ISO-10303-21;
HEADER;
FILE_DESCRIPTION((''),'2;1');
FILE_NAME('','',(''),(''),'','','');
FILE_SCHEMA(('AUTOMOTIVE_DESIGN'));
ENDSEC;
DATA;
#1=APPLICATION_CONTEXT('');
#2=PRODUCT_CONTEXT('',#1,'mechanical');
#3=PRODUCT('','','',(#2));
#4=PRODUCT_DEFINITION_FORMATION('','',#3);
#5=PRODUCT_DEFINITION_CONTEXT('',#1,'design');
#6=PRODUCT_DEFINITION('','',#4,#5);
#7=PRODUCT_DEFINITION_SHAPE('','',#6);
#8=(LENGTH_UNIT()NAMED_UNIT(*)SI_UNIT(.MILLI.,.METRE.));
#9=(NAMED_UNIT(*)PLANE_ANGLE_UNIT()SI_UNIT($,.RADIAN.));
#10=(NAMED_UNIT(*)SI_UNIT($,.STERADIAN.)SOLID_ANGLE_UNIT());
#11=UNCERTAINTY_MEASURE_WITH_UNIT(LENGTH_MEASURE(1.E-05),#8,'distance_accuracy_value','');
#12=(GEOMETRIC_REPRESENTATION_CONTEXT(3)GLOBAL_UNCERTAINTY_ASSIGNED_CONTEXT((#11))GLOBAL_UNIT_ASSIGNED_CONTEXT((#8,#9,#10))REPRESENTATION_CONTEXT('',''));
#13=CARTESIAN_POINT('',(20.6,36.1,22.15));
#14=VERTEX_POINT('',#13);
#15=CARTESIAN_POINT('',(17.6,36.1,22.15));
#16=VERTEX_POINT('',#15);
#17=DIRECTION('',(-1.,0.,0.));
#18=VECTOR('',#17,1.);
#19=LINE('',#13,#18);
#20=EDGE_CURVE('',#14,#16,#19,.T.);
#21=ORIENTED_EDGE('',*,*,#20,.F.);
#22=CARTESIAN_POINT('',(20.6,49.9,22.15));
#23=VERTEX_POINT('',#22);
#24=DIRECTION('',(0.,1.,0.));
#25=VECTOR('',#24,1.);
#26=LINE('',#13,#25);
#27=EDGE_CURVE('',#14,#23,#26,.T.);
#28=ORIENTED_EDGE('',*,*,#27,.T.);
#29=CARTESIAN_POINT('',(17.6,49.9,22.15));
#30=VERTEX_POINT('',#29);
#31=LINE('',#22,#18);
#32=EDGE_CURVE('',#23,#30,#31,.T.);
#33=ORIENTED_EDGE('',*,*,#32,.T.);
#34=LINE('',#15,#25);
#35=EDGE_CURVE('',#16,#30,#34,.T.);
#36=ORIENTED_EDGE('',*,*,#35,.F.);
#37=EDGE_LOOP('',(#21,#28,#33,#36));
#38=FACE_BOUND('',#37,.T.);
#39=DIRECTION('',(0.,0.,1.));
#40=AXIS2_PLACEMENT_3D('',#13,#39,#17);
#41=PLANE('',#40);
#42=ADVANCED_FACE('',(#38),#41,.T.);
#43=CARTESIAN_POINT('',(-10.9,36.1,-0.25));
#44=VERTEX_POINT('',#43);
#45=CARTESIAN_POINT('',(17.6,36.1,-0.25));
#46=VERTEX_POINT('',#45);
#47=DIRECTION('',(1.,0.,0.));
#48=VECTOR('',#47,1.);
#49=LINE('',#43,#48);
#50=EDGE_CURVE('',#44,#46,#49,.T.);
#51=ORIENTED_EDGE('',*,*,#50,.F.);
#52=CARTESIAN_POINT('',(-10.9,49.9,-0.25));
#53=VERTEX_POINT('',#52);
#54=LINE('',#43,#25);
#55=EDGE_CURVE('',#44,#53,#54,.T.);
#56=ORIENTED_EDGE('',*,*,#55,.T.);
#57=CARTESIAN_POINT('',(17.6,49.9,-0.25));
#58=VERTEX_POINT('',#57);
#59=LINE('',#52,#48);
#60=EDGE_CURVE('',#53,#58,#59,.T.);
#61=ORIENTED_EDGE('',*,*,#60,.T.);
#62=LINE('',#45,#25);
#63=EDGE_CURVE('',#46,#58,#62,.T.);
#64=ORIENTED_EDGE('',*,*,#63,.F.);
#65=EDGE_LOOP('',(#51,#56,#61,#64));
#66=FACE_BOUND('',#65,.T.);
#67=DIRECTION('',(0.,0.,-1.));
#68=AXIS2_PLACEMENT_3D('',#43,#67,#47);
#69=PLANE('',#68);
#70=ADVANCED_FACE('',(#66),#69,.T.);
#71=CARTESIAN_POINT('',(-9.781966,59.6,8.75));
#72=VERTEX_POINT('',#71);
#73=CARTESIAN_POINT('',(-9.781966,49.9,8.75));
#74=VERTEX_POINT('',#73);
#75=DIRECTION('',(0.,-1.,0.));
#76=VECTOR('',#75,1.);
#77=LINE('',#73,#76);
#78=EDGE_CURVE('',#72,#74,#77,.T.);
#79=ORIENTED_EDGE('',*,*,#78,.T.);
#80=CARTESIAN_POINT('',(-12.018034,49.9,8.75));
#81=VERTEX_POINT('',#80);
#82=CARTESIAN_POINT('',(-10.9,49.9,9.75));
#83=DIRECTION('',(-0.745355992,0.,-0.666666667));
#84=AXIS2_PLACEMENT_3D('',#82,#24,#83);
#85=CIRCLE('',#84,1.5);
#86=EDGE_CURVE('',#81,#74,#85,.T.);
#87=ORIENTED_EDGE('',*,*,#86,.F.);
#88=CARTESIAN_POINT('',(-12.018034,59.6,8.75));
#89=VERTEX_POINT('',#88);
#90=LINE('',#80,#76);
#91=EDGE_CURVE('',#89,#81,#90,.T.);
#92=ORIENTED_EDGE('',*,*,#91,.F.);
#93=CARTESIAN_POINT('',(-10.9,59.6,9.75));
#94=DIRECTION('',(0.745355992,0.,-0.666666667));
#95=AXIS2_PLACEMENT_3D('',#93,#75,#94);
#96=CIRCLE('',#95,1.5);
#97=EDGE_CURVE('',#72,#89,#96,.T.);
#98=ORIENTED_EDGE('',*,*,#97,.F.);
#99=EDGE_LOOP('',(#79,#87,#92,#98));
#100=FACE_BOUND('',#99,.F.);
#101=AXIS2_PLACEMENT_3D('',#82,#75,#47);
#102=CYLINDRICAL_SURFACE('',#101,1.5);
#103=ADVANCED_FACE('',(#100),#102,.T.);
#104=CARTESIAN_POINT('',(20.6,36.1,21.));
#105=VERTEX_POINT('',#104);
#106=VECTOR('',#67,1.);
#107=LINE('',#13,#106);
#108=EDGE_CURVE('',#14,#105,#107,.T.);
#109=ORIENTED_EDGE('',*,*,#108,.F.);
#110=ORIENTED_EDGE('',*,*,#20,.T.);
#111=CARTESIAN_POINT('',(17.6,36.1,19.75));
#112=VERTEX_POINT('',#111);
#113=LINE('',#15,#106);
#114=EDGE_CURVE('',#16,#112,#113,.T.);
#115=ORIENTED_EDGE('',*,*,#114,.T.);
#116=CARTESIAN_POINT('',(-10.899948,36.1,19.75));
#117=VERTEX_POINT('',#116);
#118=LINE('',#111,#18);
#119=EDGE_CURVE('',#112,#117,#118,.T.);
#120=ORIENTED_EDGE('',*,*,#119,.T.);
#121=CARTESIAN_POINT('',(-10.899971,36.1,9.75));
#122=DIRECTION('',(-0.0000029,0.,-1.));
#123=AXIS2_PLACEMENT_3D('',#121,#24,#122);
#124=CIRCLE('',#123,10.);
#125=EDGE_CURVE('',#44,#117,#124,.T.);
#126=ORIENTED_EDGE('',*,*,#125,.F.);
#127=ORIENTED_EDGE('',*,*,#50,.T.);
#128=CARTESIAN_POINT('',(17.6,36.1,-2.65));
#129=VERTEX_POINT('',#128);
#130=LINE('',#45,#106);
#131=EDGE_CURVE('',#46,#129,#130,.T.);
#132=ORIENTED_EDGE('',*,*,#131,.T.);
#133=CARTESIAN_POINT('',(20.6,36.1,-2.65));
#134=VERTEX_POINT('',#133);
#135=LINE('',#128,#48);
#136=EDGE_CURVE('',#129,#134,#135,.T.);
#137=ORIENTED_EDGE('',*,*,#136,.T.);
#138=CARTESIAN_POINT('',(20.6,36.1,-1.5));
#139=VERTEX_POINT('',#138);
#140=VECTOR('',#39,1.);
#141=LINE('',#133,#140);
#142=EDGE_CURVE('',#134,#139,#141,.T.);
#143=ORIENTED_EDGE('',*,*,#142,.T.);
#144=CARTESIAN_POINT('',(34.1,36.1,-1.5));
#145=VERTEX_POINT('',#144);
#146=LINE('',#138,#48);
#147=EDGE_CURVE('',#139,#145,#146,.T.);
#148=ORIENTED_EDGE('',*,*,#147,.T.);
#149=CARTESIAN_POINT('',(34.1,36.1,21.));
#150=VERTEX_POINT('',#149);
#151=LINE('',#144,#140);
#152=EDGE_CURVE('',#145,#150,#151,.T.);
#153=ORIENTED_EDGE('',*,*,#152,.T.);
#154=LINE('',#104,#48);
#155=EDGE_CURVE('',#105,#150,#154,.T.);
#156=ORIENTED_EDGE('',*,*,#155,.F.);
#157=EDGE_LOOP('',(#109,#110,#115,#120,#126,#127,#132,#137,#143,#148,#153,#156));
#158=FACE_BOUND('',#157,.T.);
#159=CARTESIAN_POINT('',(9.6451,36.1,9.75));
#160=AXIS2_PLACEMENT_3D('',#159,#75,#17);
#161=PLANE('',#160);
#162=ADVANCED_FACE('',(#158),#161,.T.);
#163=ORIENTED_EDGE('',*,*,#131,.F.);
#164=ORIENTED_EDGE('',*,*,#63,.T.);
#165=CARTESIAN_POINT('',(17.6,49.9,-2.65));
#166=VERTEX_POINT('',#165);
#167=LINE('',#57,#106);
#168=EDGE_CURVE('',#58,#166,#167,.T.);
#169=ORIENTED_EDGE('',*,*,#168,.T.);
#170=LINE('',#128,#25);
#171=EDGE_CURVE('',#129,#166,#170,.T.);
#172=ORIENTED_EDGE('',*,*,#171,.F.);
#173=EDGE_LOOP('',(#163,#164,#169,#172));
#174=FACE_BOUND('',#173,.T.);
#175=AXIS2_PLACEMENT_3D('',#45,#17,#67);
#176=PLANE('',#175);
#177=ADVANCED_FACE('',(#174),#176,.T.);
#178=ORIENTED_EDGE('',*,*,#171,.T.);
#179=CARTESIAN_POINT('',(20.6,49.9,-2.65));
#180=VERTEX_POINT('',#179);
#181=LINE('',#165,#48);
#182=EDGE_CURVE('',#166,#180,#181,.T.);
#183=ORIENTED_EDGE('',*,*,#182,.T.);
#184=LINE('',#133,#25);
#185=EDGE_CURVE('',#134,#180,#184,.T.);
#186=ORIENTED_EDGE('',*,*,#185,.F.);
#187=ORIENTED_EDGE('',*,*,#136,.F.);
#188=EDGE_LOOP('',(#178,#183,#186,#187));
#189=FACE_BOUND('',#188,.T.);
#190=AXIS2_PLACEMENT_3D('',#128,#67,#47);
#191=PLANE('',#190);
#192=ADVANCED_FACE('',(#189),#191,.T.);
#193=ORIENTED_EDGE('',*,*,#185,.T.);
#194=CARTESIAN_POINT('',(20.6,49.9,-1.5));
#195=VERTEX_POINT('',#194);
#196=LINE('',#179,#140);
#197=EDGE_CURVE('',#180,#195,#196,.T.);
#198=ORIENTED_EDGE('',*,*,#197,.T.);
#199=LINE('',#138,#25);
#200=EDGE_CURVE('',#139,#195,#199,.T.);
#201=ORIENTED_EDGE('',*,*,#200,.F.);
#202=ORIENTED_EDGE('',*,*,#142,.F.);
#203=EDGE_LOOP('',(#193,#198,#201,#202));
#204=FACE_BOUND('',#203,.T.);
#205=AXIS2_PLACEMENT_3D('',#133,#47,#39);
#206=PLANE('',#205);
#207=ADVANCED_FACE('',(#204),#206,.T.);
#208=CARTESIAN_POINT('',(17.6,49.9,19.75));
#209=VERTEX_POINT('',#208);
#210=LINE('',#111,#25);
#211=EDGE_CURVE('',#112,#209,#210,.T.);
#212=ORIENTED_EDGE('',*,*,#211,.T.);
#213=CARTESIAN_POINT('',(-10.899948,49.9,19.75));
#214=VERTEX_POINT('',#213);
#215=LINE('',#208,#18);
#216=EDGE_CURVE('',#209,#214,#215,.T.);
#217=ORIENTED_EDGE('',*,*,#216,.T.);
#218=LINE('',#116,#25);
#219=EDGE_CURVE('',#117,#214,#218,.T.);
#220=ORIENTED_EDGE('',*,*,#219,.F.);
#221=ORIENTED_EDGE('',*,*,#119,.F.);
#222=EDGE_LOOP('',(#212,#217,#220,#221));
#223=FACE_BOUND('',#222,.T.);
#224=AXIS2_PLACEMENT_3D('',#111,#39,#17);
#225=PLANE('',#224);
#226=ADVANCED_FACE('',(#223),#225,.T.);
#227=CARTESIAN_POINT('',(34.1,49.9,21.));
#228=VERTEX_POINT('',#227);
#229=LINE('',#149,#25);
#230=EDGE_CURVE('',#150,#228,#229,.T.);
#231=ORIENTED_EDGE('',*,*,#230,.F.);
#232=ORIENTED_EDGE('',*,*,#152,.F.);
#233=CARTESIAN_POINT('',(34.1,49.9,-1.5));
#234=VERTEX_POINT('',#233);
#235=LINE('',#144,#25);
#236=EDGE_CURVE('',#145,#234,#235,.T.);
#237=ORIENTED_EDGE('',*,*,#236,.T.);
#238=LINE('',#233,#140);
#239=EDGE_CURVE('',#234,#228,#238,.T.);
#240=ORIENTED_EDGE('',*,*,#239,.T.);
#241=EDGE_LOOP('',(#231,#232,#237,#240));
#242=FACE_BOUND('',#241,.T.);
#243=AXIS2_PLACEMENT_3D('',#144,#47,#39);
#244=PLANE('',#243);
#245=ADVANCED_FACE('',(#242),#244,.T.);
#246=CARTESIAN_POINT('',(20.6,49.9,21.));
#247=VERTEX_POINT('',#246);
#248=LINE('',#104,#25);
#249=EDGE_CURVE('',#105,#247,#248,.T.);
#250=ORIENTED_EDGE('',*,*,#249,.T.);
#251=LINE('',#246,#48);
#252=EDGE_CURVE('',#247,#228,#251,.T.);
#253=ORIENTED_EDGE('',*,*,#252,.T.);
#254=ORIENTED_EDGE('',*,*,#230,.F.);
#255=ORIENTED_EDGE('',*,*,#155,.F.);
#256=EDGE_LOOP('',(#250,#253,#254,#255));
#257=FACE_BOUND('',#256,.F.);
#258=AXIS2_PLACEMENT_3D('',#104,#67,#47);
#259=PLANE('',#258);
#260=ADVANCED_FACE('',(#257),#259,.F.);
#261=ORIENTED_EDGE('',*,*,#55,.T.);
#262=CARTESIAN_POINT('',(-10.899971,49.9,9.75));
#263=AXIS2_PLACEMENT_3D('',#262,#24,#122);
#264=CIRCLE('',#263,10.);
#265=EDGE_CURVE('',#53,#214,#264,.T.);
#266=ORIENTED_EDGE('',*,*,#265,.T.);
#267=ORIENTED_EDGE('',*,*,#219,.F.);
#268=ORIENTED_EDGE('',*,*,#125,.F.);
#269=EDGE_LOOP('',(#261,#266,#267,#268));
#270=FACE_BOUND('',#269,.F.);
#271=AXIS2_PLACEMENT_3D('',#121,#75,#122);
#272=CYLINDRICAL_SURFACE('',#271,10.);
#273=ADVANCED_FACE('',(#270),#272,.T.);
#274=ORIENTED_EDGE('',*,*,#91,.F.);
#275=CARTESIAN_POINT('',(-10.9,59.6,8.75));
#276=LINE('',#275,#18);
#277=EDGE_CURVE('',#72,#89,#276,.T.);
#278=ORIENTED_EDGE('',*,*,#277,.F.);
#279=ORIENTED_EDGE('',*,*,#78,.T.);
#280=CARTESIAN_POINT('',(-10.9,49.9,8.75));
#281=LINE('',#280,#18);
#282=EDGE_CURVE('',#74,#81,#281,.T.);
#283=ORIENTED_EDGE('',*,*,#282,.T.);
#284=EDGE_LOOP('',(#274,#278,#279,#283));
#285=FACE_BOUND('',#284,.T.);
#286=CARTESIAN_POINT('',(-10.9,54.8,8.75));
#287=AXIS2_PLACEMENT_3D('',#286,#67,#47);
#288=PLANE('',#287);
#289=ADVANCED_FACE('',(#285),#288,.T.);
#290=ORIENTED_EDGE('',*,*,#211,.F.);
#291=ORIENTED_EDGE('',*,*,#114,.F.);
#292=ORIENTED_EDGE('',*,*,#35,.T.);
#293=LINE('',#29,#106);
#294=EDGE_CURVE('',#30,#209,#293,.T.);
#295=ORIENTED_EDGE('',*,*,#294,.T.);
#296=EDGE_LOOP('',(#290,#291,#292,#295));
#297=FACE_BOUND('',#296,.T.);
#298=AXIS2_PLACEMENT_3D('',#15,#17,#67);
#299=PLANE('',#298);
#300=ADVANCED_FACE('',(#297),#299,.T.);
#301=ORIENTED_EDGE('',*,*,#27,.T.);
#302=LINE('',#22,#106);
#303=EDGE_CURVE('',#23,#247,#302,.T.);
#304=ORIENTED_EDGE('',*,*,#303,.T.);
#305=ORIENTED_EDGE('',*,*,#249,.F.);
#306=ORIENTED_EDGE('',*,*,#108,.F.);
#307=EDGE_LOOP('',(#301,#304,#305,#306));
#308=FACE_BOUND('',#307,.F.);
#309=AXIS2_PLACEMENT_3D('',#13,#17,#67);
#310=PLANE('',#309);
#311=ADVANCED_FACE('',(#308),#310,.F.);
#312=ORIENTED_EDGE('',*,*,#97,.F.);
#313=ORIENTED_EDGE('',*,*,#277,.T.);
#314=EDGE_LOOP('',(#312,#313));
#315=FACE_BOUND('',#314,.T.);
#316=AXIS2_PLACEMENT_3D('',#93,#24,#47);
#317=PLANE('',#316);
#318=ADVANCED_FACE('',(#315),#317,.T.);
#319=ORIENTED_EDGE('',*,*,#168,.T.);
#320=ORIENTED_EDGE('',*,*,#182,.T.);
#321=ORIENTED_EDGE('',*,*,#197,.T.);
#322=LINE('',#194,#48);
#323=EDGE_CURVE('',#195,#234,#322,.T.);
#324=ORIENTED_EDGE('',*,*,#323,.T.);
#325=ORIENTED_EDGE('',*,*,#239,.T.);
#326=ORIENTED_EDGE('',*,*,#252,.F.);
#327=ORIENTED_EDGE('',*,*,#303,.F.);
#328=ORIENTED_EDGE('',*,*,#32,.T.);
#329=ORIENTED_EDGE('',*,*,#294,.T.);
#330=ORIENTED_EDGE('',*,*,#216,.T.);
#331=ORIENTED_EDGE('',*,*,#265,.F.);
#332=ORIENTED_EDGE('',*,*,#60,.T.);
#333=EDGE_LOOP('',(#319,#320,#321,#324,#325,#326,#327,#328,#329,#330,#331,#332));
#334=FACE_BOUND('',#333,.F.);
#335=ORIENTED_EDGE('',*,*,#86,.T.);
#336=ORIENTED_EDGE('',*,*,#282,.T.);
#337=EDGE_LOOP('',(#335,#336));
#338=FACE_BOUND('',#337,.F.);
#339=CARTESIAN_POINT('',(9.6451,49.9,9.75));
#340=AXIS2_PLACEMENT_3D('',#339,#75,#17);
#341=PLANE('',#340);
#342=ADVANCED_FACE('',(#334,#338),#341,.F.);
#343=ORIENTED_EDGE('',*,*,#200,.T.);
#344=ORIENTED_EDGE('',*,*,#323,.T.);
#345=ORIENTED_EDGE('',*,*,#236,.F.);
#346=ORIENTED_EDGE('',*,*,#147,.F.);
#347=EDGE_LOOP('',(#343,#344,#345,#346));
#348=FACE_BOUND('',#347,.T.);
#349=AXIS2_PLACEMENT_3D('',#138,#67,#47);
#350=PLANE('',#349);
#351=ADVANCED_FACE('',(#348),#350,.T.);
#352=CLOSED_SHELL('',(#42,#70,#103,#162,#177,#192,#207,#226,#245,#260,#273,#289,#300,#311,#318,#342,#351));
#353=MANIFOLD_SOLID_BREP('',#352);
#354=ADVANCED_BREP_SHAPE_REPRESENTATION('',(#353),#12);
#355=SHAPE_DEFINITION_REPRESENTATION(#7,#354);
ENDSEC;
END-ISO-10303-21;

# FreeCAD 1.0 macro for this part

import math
import FreeCAD as App
import Part
import Sketcher
from FreeCAD import Vector
Q = App.Units.Quantity

doc = App.newDocument("Part")
params = doc.addObject("Spreadsheet::Sheet", "Params")
for row, (alias, value) in enumerate([
    ("sketch1_radius", "10 mm"),
    ("sketch1_width", "3 mm"),
    ("sketch1_width2", "28.5 mm"),
    ("sketch1_width3", "13.5 mm"),
    ("sketch1_height", "2.4 mm"),
    ("pad1_length", "13.8 mm"),
    ("sketch2_width", "3 mm"),
    ("sketch2_height", "10 mm"),
    ("pad2_length", "3 mm"),
    ("sketch3_diameter", "3 mm"),
    ("pad3_length", "9.7 mm"),
], start=1):
    params.set(f"A{row}", alias)
    params.set(f"B{row}", "=" + value)
    params.setAlias(f"B{row}", alias)

body = doc.addObject("PartDesign::Body", "Body")

# Sketch on XZ plane
sketch1 = body.newObject("Sketcher::SketchObject", "Sketch")
sketch1.AttachmentSupport = (doc.getObject("XZ_Plane"), [""])
sketch1.MapMode = "FlatFace"
sketch1.addGeometry([
    Part.LineSegment(Vector(-16.5, 21.2, 0), Vector(-45, 21.2, 0)),  # 0
    Part.ArcOfCircle(Part.Circle(Vector(-45, 11.2, 0), Vector(0, 0, 1), 10), math.radians(90), math.radians(270)),  # 1
    Part.LineSegment(Vector(-45, 1.2, 0), Vector(-16.5, 1.2, 0)),  # 2
    Part.LineSegment(Vector(-16.5, 1.2, 0), Vector(-16.5, -1.1, 0)),  # 3
    Part.LineSegment(Vector(-16.5, -1.1, 0), Vector(-13.5, -1.1, 0)),  # 4
    Part.LineSegment(Vector(-13.5, -1.1, 0), Vector(-13.5, 0, 0)),  # 5
    Part.LineSegment(Vector(-13.5, 0, 0), Vector(0, 0, 0)),  # 6
    Part.LineSegment(Vector(0, 0, 0), Vector(0, 22.5, 0)),  # 7
    Part.LineSegment(Vector(0, 22.5, 0), Vector(-13.5, 22.5, 0)),  # 8
    Part.LineSegment(Vector(-13.5, 22.5, 0), Vector(-13.5, 23.6, 0)),  # 9
    Part.LineSegment(Vector(-13.5, 23.6, 0), Vector(-16.5, 23.6, 0)),  # 10
    Part.LineSegment(Vector(-16.5, 23.6, 0), Vector(-16.5, 21.2, 0)),  # 11
], False)
sketch1.addConstraint([
    Sketcher.Constraint("Coincident", 0, 2, 1, 1),
    Sketcher.Constraint("Coincident", 1, 2, 2, 1),
    Sketcher.Constraint("Coincident", 2, 2, 3, 1),
    Sketcher.Constraint("Coincident", 3, 2, 4, 1),
    Sketcher.Constraint("Coincident", 4, 2, 5, 1),
    Sketcher.Constraint("Coincident", 5, 2, 6, 1),
    Sketcher.Constraint("Coincident", 6, 2, 7, 1),
    Sketcher.Constraint("Coincident", 7, 2, 8, 1),
    Sketcher.Constraint("Coincident", 8, 2, 9, 1),
    Sketcher.Constraint("Coincident", 9, 2, 10, 1),
    Sketcher.Constraint("Coincident", 10, 2, 11, 1),
    Sketcher.Constraint("Coincident", 11, 2, 0, 1),
    Sketcher.Constraint("Horizontal", 0),
    Sketcher.Constraint("Horizontal", 2),
    Sketcher.Constraint("Vertical", 3),
    Sketcher.Constraint("Horizontal", 4),
    Sketcher.Constraint("Vertical", 5),
    Sketcher.Constraint("Horizontal", 6),
    Sketcher.Constraint("Vertical", 7),
    Sketcher.Constraint("Horizontal", 8),
    Sketcher.Constraint("Vertical", 9),
    Sketcher.Constraint("Horizontal", 10),
    Sketcher.Constraint("Vertical", 11),
    Sketcher.Constraint("Coincident", 6, 2, -1, 1),
    Sketcher.Constraint("Vertical", 5, 2, 8, 2),
    Sketcher.Constraint("Vertical", 3, 2, 10, 2),
    Sketcher.Constraint("Equal", 5, 9),
    Sketcher.Constraint("Equal", 3, 11),
    Sketcher.Constraint("Radius", 1, Q("10 mm")),
    Sketcher.Constraint("DistanceX", 4, 1, 4, 2, Q("3 mm")),
    Sketcher.Constraint("DistanceX", 0, 2, 0, 1, Q("28.5 mm")),
    Sketcher.Constraint("DistanceX", 6, 1, 6, 2, Q("13.5 mm")),
    Sketcher.Constraint("DistanceY", 3, 2, 3, 1, Q("2.4 mm")),
    Sketcher.Constraint("DistanceY", 7, 1, 7, 2, Q("22.5 mm")),
    Sketcher.Constraint("DistanceX", 2, 1, 2, 2, Q("28.499948 mm")),
    Sketcher.Constraint("DistanceX", 1, 3, -1, 1, Q("44.999971 mm")),
])
sketch1.setExpression("Constraints[28]", "Params.sketch1_radius")
sketch1.setExpression("Constraints[29]", "Params.sketch1_width")
sketch1.setExpression("Constraints[30]", "Params.sketch1_width2")
sketch1.setExpression("Constraints[31]", "Params.sketch1_width3")
sketch1.setExpression("Constraints[32]", "Params.sketch1_height")
pad1 = body.newObject("PartDesign::Pad", "Pad")
pad1.Profile = sketch1
pad1.setExpression("Length", "Params.pad1_length")
body2 = doc.addObject("PartDesign::Body", "Body001")

# Sketch on XY plane
sketch2 = body2.newObject("Sketcher::SketchObject", "Sketch001")
sketch2.AttachmentSupport = (doc.getObject("XY_Plane001"), [""])
sketch2.MapMode = "FlatFace"
sketch2.AttachmentOffset = App.Placement(Vector(0, 0, 12.25), App.Rotation())
sketch2.addGeometry([
    Part.LineSegment(Vector(-46.5, -13.7, 0), Vector(-46.5, -23.7, 0)),
    Part.LineSegment(Vector(-46.5, -23.7, 0), Vector(-43.5, -23.7, 0)),
    Part.LineSegment(Vector(-43.5, -23.7, 0), Vector(-43.5, -13.7, 0)),
    Part.LineSegment(Vector(-43.5, -13.7, 0), Vector(-46.5, -13.7, 0)),
], False)
sketch2.addConstraint([
    Sketcher.Constraint("Coincident", 0, 2, 1, 1),
    Sketcher.Constraint("Coincident", 1, 2, 2, 1),
    Sketcher.Constraint("Coincident", 2, 2, 3, 1),
    Sketcher.Constraint("Coincident", 3, 2, 0, 1),
    Sketcher.Constraint("Vertical", 0),
    Sketcher.Constraint("Horizontal", 1),
    Sketcher.Constraint("Vertical", 2),
    Sketcher.Constraint("Horizontal", 3),
    Sketcher.Constraint("DistanceX", 1, 1, 1, 2, Q("3 mm")),
    Sketcher.Constraint("DistanceY", 0, 2, 0, 1, Q("10 mm")),
    Sketcher.Constraint("DistanceX", 0, 2, -1, 1, Q("46.5 mm")),
    Sketcher.Constraint("DistanceY", 0, 2, -1, 1, Q("23.7 mm")),
])
sketch2.setExpression("Constraints[8]", "Params.sketch2_width")
sketch2.setExpression("Constraints[9]", "Params.sketch2_height")
pad2 = body2.newObject("PartDesign::Pad", "Pad001")
pad2.Profile = sketch2
pad2.setExpression("Length", "Params.pad2_length")
body3 = doc.addObject("PartDesign::Body", "Body002")

# Sketch on XY plane
sketch3 = body3.newObject("Sketcher::SketchObject", "Sketch002")
sketch3.AttachmentSupport = (doc.getObject("XY_Plane002"), [""])
sketch3.MapMode = "FlatFace"
sketch3.addGeometry(Part.Circle(Vector(0, 0, 0), Vector(0, 0, 1), 1.5), False)
sketch3.addConstraint([
    Sketcher.Constraint("Coincident", 0, 3, -1, 1),
    Sketcher.Constraint("Diameter", 0, Q("3 mm")),
])
sketch3.setExpression("Constraints[1]", "Params.sketch3_diameter")
pad3 = body3.newObject("PartDesign::Pad", "Pad002")
pad3.Profile = sketch3
pad3.setExpression("Length", "Params.pad3_length")
body4 = doc.addObject("PartDesign::Body", "Body003")
doc.recompute()

body3.Placement = App.Placement(Vector(0, 0, 0), App.Rotation(Vector(1, 0, 0), 90))
boolean = body4.newObject("PartDesign::Boolean", "Boolean")
boolean.Type = "Fuse"
boolean.addObjects([body3])
body5 = doc.addObject("PartDesign::Body", "Body004")
doc.recompute()

body4.Placement = App.Placement(Vector(-45, -13.8, 11.25), App.Rotation(Vector(0, 0, 1), 0))
boolean2 = body5.newObject("PartDesign::Boolean", "Boolean001")
boolean2.Type = "Fuse"
boolean2.addObjects([body4])
doc.recompute()

boolean3 = body5.newObject("PartDesign::Boolean", "Boolean002")
boolean3.Type = "Cut"
boolean3.addObjects([body2])
doc.recompute()

boolean4 = body5.newObject("PartDesign::Boolean", "Boolean003")
boolean4.Type = "Fuse"
boolean4.addObjects([body])
body6 = doc.addObject("PartDesign::Body", "Body005")
doc.recompute()

body5.Placement = App.Placement(Vector(34.1, -23.1, -1.5), App.Rotation(Vector(0, 0, 1), 0))
boolean5 = body6.newObject("PartDesign::Boolean", "Boolean004")
boolean5.Type = "Fuse"
boolean5.addObjects([body5])
body7 = doc.addObject("PartDesign::Body", "Body006")
doc.recompute()

body6.Placement = App.Placement(Vector(0, 13, 19.5), App.Rotation(Vector(1, 0, 0), 180))
boolean6 = body7.newObject("PartDesign::Boolean", "Boolean005")
boolean6.Type = "Fuse"
boolean6.addObjects([body6])

doc.recompute()
